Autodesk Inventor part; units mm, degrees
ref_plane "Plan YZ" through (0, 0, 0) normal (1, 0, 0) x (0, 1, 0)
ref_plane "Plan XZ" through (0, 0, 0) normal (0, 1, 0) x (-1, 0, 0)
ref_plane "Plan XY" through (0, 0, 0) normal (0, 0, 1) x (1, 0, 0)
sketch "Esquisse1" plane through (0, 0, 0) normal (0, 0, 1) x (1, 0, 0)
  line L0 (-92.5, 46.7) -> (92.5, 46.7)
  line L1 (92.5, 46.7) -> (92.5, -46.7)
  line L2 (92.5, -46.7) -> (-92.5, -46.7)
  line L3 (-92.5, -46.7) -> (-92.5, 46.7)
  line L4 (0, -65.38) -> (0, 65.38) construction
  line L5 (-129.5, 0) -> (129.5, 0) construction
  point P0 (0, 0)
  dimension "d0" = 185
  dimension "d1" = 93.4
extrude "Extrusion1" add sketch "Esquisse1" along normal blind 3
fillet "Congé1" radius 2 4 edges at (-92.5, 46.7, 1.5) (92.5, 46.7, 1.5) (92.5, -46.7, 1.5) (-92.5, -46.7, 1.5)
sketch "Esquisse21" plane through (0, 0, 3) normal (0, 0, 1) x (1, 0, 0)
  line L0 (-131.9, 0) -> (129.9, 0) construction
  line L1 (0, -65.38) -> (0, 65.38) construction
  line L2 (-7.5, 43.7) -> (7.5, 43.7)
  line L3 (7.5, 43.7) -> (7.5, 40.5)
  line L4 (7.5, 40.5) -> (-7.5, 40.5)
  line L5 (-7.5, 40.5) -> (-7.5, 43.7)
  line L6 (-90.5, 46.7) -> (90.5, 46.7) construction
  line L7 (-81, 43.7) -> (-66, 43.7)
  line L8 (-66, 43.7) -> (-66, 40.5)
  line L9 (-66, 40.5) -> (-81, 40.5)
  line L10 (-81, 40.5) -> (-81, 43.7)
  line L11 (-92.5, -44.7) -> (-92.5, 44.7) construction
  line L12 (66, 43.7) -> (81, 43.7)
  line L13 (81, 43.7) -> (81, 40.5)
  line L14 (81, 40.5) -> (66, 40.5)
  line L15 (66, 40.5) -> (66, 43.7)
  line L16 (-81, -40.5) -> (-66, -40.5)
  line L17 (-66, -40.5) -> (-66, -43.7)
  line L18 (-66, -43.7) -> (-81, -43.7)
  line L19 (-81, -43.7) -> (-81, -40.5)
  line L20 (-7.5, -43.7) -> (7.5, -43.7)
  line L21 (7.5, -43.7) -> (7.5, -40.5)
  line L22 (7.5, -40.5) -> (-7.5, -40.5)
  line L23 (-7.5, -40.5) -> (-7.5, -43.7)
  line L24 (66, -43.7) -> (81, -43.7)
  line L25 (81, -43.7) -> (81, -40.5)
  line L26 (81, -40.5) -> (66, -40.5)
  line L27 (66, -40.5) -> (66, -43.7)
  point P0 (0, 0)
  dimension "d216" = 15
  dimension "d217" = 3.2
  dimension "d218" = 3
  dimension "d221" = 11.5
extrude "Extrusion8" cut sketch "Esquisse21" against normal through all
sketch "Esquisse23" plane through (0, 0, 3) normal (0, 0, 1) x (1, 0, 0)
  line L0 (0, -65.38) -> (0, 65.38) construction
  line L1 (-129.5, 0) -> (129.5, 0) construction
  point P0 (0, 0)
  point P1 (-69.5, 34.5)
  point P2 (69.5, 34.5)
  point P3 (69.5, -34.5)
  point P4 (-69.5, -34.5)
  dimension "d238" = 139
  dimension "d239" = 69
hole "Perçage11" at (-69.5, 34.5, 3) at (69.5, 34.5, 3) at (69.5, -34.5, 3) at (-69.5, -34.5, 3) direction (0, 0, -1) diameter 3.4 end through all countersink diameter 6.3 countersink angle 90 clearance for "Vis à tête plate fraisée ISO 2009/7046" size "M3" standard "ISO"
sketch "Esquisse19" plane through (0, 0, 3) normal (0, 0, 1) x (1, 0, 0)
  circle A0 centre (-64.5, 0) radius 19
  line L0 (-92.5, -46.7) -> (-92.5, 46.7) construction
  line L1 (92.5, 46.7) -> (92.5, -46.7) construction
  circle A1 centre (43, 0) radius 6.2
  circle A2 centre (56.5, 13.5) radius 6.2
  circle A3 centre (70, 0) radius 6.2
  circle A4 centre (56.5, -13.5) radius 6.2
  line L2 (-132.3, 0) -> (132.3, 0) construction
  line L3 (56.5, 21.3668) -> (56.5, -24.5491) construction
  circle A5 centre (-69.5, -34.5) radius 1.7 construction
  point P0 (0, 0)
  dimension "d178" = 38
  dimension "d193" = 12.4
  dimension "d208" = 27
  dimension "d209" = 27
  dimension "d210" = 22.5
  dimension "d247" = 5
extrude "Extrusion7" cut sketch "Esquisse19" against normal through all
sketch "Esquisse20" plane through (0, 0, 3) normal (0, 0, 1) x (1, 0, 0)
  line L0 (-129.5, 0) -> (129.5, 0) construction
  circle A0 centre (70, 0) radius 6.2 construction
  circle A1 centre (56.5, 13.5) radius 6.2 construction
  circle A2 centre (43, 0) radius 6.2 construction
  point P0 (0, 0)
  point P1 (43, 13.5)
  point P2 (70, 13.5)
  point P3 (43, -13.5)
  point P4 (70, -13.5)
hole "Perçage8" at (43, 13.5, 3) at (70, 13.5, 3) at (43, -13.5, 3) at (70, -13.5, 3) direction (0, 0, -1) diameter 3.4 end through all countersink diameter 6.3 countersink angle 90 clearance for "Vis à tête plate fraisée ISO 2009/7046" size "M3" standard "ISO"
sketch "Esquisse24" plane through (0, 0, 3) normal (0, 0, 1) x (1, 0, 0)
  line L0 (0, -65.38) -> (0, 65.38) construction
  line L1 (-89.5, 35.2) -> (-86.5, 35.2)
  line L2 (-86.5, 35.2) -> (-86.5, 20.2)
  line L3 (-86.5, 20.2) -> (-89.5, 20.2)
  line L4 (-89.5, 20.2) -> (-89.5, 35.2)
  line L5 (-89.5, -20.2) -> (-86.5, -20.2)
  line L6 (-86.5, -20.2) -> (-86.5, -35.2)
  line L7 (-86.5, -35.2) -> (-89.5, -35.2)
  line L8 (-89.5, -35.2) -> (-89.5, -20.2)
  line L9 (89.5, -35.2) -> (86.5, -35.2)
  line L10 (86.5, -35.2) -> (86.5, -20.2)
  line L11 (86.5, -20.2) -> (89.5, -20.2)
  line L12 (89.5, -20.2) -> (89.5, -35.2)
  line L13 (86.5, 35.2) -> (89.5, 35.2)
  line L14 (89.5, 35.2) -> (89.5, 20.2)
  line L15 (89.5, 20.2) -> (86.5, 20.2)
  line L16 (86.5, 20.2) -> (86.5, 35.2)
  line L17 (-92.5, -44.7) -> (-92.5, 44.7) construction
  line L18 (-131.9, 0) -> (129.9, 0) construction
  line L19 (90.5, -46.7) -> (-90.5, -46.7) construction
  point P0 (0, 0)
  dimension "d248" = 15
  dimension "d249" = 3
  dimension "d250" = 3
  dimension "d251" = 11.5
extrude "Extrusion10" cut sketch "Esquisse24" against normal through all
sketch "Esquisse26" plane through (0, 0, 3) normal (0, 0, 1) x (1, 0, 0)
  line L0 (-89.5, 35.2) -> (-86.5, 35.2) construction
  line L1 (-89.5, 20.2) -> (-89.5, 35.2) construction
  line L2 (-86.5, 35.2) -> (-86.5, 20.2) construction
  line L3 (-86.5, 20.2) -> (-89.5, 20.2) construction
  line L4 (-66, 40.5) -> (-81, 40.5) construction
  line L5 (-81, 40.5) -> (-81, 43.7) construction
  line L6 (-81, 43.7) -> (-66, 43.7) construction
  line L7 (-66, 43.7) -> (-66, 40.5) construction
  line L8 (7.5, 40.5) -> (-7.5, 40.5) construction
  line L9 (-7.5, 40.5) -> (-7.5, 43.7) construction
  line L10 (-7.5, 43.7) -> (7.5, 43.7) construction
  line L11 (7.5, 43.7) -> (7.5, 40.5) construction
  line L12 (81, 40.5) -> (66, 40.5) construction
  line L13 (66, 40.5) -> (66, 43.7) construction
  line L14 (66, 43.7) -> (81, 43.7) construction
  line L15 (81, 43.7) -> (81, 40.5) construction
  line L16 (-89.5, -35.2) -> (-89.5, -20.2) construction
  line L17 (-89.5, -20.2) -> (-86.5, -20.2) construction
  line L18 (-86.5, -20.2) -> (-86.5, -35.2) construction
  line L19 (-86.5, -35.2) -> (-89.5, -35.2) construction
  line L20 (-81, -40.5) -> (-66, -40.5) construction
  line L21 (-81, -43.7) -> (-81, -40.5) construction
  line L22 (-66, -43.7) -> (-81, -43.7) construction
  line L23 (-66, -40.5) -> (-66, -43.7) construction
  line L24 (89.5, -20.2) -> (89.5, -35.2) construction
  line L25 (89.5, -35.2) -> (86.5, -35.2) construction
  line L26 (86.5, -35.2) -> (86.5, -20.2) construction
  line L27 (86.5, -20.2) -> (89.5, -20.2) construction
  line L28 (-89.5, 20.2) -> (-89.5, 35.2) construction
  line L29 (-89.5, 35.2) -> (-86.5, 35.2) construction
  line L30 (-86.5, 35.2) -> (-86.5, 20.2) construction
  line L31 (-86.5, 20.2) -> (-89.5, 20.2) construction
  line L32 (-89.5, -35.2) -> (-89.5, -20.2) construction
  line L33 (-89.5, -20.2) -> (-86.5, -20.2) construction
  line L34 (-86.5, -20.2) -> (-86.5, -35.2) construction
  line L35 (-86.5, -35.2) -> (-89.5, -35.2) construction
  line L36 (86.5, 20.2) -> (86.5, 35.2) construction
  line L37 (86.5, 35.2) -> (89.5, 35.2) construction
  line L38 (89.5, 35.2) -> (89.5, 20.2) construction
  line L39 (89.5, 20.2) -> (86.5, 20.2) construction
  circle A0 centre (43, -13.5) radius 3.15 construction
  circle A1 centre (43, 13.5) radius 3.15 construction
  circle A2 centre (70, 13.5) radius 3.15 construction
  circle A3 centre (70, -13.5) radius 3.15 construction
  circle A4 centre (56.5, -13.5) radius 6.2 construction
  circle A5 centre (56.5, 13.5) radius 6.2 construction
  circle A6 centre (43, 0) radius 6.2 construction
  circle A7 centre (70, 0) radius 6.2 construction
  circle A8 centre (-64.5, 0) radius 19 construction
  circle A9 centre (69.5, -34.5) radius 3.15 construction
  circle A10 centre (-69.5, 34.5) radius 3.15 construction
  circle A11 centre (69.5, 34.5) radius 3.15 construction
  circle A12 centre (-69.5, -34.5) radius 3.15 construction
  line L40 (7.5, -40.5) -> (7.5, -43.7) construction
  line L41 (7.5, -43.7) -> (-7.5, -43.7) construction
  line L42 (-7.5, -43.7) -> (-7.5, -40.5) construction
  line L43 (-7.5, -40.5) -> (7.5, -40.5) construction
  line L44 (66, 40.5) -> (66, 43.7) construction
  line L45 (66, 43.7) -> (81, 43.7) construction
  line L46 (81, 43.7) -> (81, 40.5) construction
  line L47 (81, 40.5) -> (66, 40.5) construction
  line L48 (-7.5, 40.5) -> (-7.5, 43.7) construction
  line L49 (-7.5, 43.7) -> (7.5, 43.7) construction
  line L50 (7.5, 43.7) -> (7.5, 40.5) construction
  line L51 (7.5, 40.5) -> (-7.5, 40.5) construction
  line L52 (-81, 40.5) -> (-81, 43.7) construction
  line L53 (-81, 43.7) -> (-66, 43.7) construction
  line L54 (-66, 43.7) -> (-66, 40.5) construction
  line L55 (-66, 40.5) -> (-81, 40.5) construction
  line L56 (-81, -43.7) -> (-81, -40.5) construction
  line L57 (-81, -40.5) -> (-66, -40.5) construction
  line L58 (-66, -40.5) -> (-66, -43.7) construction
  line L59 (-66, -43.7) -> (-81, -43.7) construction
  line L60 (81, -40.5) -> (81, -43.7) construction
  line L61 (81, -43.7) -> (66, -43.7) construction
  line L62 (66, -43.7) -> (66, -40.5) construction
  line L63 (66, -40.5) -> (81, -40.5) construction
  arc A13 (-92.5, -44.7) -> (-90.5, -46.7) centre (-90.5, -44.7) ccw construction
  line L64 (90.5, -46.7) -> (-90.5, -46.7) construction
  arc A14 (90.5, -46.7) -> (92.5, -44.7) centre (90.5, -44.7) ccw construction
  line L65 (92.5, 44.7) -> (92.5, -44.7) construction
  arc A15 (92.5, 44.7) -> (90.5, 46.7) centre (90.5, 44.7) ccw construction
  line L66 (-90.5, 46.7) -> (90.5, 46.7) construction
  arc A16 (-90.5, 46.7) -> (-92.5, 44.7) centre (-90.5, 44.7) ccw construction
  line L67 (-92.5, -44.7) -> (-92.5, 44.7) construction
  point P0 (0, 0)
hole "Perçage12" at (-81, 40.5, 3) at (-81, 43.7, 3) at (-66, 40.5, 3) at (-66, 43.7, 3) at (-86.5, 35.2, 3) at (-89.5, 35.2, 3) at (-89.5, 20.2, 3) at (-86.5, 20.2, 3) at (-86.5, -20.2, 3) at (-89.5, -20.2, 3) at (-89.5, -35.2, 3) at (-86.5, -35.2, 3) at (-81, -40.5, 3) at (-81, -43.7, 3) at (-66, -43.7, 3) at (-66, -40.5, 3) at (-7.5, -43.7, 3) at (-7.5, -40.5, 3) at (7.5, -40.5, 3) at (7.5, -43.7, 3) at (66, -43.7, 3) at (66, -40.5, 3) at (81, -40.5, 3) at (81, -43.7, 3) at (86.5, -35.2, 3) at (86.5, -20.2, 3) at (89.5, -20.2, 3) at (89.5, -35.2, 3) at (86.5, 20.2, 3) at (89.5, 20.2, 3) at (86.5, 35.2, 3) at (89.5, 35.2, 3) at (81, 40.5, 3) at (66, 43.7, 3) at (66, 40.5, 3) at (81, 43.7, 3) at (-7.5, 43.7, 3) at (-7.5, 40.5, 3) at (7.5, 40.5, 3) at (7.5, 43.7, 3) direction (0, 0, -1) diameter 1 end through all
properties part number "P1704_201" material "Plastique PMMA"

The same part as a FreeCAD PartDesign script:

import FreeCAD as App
import Part
import Sketcher

V = App.Vector
Q = App.Units.Quantity


def edges_at(feature, points):
    """Names of the edges that pass closest to the given points."""
    edges = feature.Shape.Edges
    near = lambda p: min(range(len(edges)), key=lambda i: edges[i].distToShape(Part.Vertex(*p))[0])
    return sorted({f"Edge{near(p) + 1}" for p in points})


def add_polygon(sketch, points):
    """Adds a closed chain of lines whose ends are joined by coincident constraints."""
    first, n = sketch.GeometryCount, len(points)
    for a, b in zip(points, points[1:] + points[:1]):
        sketch.addGeometry(Part.LineSegment(App.Vector(*a, 0), App.Vector(*b, 0)), False)
    for i in range(n):
        sketch.addConstraint(Sketcher.Constraint("Coincident", first + i, 2, first + (i + 1) % n, 1))

doc = App.newDocument("Part")
body = doc.addObject("PartDesign::Body", "Body")

sketch1 = doc.addObject("Sketcher::SketchObject", "Sketch")
body.addObject(sketch1)
sketch1.AttachmentSupport = (doc.XY_Plane, [""])
sketch1.MapMode = "FlatFace"
add_polygon(sketch1, [(92, 47), (-92, 47), (-92, -47), (92, -47)])
sketch1.addConstraint([
    Sketcher.Constraint("Horizontal", 0),
    Sketcher.Constraint("Vertical", 1),
    Sketcher.Constraint("Horizontal", 2),
    Sketcher.Constraint("Vertical", 3),
    Sketcher.Constraint("Symmetric", 0, 2, 2, 2, -1, 1),
    Sketcher.Constraint("DistanceX", 0, 2, 0, 1, Q("185 mm")),
    Sketcher.Constraint("DistanceY", 1, 2, 1, 1, Q("93.4 mm")),
])
pad1 = doc.addObject("PartDesign::Pad", "Pad")
body.addObject(pad1)
pad1.Profile = sketch1
pad1.Length = 3
doc.recompute()

fillet = doc.addObject("PartDesign::Fillet", "Fillet")
body.addObject(fillet)
fillet.Base = (pad1, edges_at(pad1, [
    (-92.5, 46.7, 1.5),
    (92.5, 46.7, 1.5),
    (92.5, -46.7, 1.5),
    (-92.5, -46.7, 1.5),
]))
fillet.Radius = 2

sketch2 = doc.addObject("Sketcher::SketchObject", "Sketch001")
body.addObject(sketch2)
sketch2.AttachmentSupport = (doc.XY_Plane, [""])
sketch2.MapMode = "FlatFace"
sketch2.AttachmentOffset = App.Placement(V(0, 0, 3), App.Rotation())
add_polygon(sketch2, [(7.5, 43.7), (-7.5, 43.7), (-7.5, 40.5), (7.5, 40.5)])
add_polygon(sketch2, [(-66, 43.7), (-81, 43.7), (-81, 40.5), (-66, 40.5)])
add_polygon(sketch2, [(81, 43.7), (66, 43.7), (66, 40.5), (81, 40.5)])
add_polygon(sketch2, [(-66, -40.5), (-81, -40.5), (-81, -43.7), (-66, -43.7)])
add_polygon(sketch2, [(-7.5, -40.5), (-7.5, -43.7), (7.5, -43.7), (7.5, -40.5)])
add_polygon(sketch2, [(66, -40.5), (66, -43.7), (81, -43.7), (81, -40.5)])
sketch2.addConstraint([
    Sketcher.Constraint("Horizontal", 0),
    Sketcher.Constraint("Vertical", 1),
    Sketcher.Constraint("Horizontal", 2),
    Sketcher.Constraint("Vertical", 3),
    Sketcher.Constraint("Horizontal", 4),
    Sketcher.Constraint("Vertical", 5),
    Sketcher.Constraint("Horizontal", 6),
    Sketcher.Constraint("Vertical", 7),
    Sketcher.Constraint("Horizontal", 8),
    Sketcher.Constraint("Vertical", 9),
    Sketcher.Constraint("Horizontal", 10),
    Sketcher.Constraint("Vertical", 11),
    Sketcher.Constraint("Horizontal", 12),
    Sketcher.Constraint("Vertical", 13),
    Sketcher.Constraint("Horizontal", 14),
    Sketcher.Constraint("Vertical", 15),
    Sketcher.Constraint("Vertical", 16),
    Sketcher.Constraint("Horizontal", 17),
    Sketcher.Constraint("Vertical", 18),
    Sketcher.Constraint("Horizontal", 19),
    Sketcher.Constraint("Vertical", 20),
    Sketcher.Constraint("Horizontal", 21),
    Sketcher.Constraint("Vertical", 22),
    Sketcher.Constraint("Horizontal", 23),
    Sketcher.Constraint("Symmetric", 10, 2, 12, 2, -1, 1),
    Sketcher.Constraint("Symmetric", 8, 2, 14, 2, -1, 1),
    Sketcher.Constraint("Symmetric", 3, 2, 16, 2, -1, 1),
    Sketcher.Constraint("Symmetric", 1, 2, 18, 2, -1, 1),
    Sketcher.Constraint("Symmetric", 7, 2, 20, 2, -1, 1),
    Sketcher.Constraint("Symmetric", 5, 2, 22, 2, -1, 1),
    Sketcher.Constraint("Symmetric", 7, 2, 8, 2, -2),
    Sketcher.Constraint("Symmetric", 5, 2, 10, 2, -2),
    Sketcher.Constraint("Horizontal", 3, 2, 4, 2),
    Sketcher.Constraint("Horizontal", 2, 2, 5, 2),
    Sketcher.Constraint("Vertical", 1, 2, 16, 2),
    Sketcher.Constraint("Equal", 2, 4),
    Sketcher.Constraint("DistanceX", 0, 2, 0, 1, Q("15 mm")),
    Sketcher.Constraint("DistanceY", 1, 2, 1, 1, Q("3.2 mm")),
    Sketcher.Constraint("DistanceX", 4, 2, -1, 1, Q("81 mm")),
    Sketcher.Constraint("DistanceY", 12, 2, 5, 2, Q("81 mm")),
])
pocket1 = doc.addObject("PartDesign::Pocket", "Pocket")
body.addObject(pocket1)
pocket1.Profile = sketch2
pocket1.Type = "ThroughAll"

sketch3 = doc.addObject("Sketcher::SketchObject", "Sketch002")
body.addObject(sketch3)
sketch3.AttachmentSupport = (doc.XY_Plane, [""])
sketch3.MapMode = "FlatFace"
sketch3.AttachmentOffset = App.Placement(V(0, 0, 3), App.Rotation())
sketch3.addGeometry([
    Part.Circle(V(-69.5, 34.5, 0), V(0, 0, 1), 1.7),
    Part.Circle(V(69.5, 34.5, 0), V(0, 0, 1), 1.7),
    Part.Circle(V(69.5, -34.5, 0), V(0, 0, 1), 1.7),
    Part.Circle(V(-69.5, -34.5, 0), V(0, 0, 1), 1.7),
], False)
sketch3.addConstraint([
    Sketcher.Constraint("Equal", 0, 1),
    Sketcher.Constraint("Equal", 1, 2),
    Sketcher.Constraint("Equal", 2, 3),
    Sketcher.Constraint("Symmetric", 0, 3, 2, 3, -1, 1),
    Sketcher.Constraint("Symmetric", 1, 3, 3, 3, -1, 1),
    Sketcher.Constraint("Symmetric", 0, 3, 1, 3, -2),
    Sketcher.Constraint("Diameter", 0, Q("3.4 mm")),
    Sketcher.Constraint("DistanceX", 0, 3, 1, 3, Q("139 mm")),
    Sketcher.Constraint("DistanceY", 2, 3, 1, 3, Q("69 mm")),
])
doc.recompute()
hole = doc.addObject("PartDesign::Hole", "Hole")
body.addObject(hole)
hole.Profile = sketch3
hole.ThreadType = "None"
hole.Diameter = 3.4
hole.DepthType = "ThroughAll"
hole.HoleCutType = "Countersink"
hole.HoleCutDiameter = 6.3
hole.HoleCutCountersinkAngle = 90

sketch4 = doc.addObject("Sketcher::SketchObject", "Sketch003")
body.addObject(sketch4)
sketch4.AttachmentSupport = (doc.XY_Plane, [""])
sketch4.MapMode = "FlatFace"
sketch4.AttachmentOffset = App.Placement(V(0, 0, 3), App.Rotation())
sketch4.addGeometry([
    Part.Circle(V(-64, 0, 0), V(0, 0, 1), 19),
    Part.Circle(V(43, 0, 0), V(0, 0, 1), 6),
    Part.Circle(V(56, 14, 0), V(0, 0, 1), 6),
    Part.Circle(V(70, 0, 0), V(0, 0, 1), 6),
    Part.Circle(V(56, -14, 0), V(0, 0, 1), 6),
], False)
sketch4.addConstraint([
    Sketcher.Constraint("Equal", 1, 2),
    Sketcher.Constraint("Equal", 2, 3),
    Sketcher.Constraint("Equal", 3, 4),
    Sketcher.Constraint("Symmetric", 2, 3, 4, 3, -1),
    Sketcher.Constraint("PointOnObject", 0, 3, -1),
    Sketcher.Constraint("PointOnObject", 1, 3, -1),
    Sketcher.Constraint("PointOnObject", 3, 3, -1),
    Sketcher.Constraint("Diameter", 0, Q("38 mm")),
    Sketcher.Constraint("Diameter", 1, Q("12.4 mm")),
    Sketcher.Constraint("DistanceX", 1, 3, 3, 3, Q("27 mm")),
    Sketcher.Constraint("DistanceY", 4, 3, 2, 3, Q("27 mm")),
    Sketcher.Constraint("DistanceX", -1, 1, 1, 3, Q("43 mm")),
    Sketcher.Constraint("DistanceX", 0, 3, 2, 3, Q("121 mm")),
    Sketcher.Constraint("DistanceX", 0, 3, -1, 1, Q("64.5 mm")),
])
pocket2 = doc.addObject("PartDesign::Pocket", "Pocket001")
body.addObject(pocket2)
pocket2.Profile = sketch4
pocket2.Type = "ThroughAll"

sketch5 = doc.addObject("Sketcher::SketchObject", "Sketch004")
body.addObject(sketch5)
sketch5.AttachmentSupport = (doc.XY_Plane, [""])
sketch5.MapMode = "FlatFace"
sketch5.AttachmentOffset = App.Placement(V(0, 0, 3), App.Rotation())
sketch5.addGeometry([
    Part.Circle(V(43, 13.5, 0), V(0, 0, 1), 1.7),
    Part.Circle(V(70, 13.5, 0), V(0, 0, 1), 1.7),
    Part.Circle(V(43, -13.5, 0), V(0, 0, 1), 1.7),
    Part.Circle(V(70, -13.5, 0), V(0, 0, 1), 1.7),
], False)
sketch5.addConstraint([
    Sketcher.Constraint("Equal", 0, 1),
    Sketcher.Constraint("Equal", 1, 2),
    Sketcher.Constraint("Equal", 2, 3),
    Sketcher.Constraint("Symmetric", 0, 3, 2, 3, -1),
    Sketcher.Constraint("Symmetric", 1, 3, 3, 3, -1),
    Sketcher.Constraint("Horizontal", 0, 3, 1, 3),
    Sketcher.Constraint("Diameter", 0, Q("3.4 mm")),
    Sketcher.Constraint("DistanceX", -1, 1, 0, 3, Q("43 mm")),
    Sketcher.Constraint("DistanceX", -1, 1, 1, 3, Q("70 mm")),
    Sketcher.Constraint("DistanceY", 2, 3, 0, 3, Q("27 mm")),
])
doc.recompute()
hole2 = doc.addObject("PartDesign::Hole", "Hole001")
body.addObject(hole2)
hole2.Profile = sketch5
hole2.ThreadType = "None"
hole2.Diameter = 3.4
hole2.DepthType = "ThroughAll"
hole2.HoleCutType = "Countersink"
hole2.HoleCutDiameter = 6.3
hole2.HoleCutCountersinkAngle = 90

sketch6 = doc.addObject("Sketcher::SketchObject", "Sketch005")
body.addObject(sketch6)
sketch6.AttachmentSupport = (doc.XY_Plane, [""])
sketch6.MapMode = "FlatFace"
sketch6.AttachmentOffset = App.Placement(V(0, 0, 3), App.Rotation())
add_polygon(sketch6, [(-86.5, 35.2), (-89.5, 35.2), (-89.5, 20.2), (-86.5, 20.2)])
add_polygon(sketch6, [(-86.5, -20.2), (-89.5, -20.2), (-89.5, -35.2), (-86.5, -35.2)])
add_polygon(sketch6, [(86.5, -35.2), (89.5, -35.2), (89.5, -20.2), (86.5, -20.2)])
add_polygon(sketch6, [(89.5, 35.2), (86.5, 35.2), (86.5, 20.2), (89.5, 20.2)])
sketch6.addConstraint([
    Sketcher.Constraint("Horizontal", 0),
    Sketcher.Constraint("Vertical", 1),
    Sketcher.Constraint("Horizontal", 2),
    Sketcher.Constraint("Vertical", 3),
    Sketcher.Constraint("Horizontal", 4),
    Sketcher.Constraint("Vertical", 5),
    Sketcher.Constraint("Horizontal", 6),
    Sketcher.Constraint("Vertical", 7),
    Sketcher.Constraint("Horizontal", 8),
    Sketcher.Constraint("Vertical", 9),
    Sketcher.Constraint("Horizontal", 10),
    Sketcher.Constraint("Vertical", 11),
    Sketcher.Constraint("Horizontal", 12),
    Sketcher.Constraint("Vertical", 13),
    Sketcher.Constraint("Horizontal", 14),
    Sketcher.Constraint("Vertical", 15),
    Sketcher.Constraint("Symmetric", 0, 2, 8, 2, -1, 1),
    Sketcher.Constraint("Symmetric", 2, 2, 10, 2, -1, 1),
    Sketcher.Constraint("Symmetric", 6, 2, 12, 2, -1, 1),
    Sketcher.Constraint("Symmetric", 4, 2, 14, 2, -1, 1),
    Sketcher.Constraint("Symmetric", 5, 2, 8, 2, -2),
    Sketcher.Constraint("Symmetric", 7, 2, 10, 2, -2),
    Sketcher.Constraint("DistanceX", 0, 2, 0, 1, Q("3 mm")),
    Sketcher.Constraint("DistanceY", 1, 2, 1, 1, Q("15 mm")),
    Sketcher.Constraint("DistanceX", 6, 2, 8, 2, Q("176 mm")),
    Sketcher.Constraint("DistanceY", -1, 1, 0, 2, Q("35.2 mm")),
])
pocket3 = doc.addObject("PartDesign::Pocket", "Pocket002")
body.addObject(pocket3)
pocket3.Profile = sketch6
pocket3.Type = "ThroughAll"

sketch7 = doc.addObject("Sketcher::SketchObject", "Sketch006")
body.addObject(sketch7)
sketch7.AttachmentSupport = (doc.XY_Plane, [""])
sketch7.MapMode = "FlatFace"
sketch7.AttachmentOffset = App.Placement(V(0, 0, 3), App.Rotation())
sketch7.addGeometry([
    Part.Circle(V(-81, 40.5, 0), V(0, 0, 1), 0.5),
    Part.Circle(V(-81, 43.7, 0), V(0, 0, 1), 0.5),
    Part.Circle(V(-66, 40.5, 0), V(0, 0, 1), 0.5),
    Part.Circle(V(-66, 43.7, 0), V(0, 0, 1), 0.5),
    Part.Circle(V(-86.5, 35.2, 0), V(0, 0, 1), 0.5),
    Part.Circle(V(-89.5, 35.2, 0), V(0, 0, 1), 0.5),
    Part.Circle(V(-89.5, 20.2, 0), V(0, 0, 1), 0.5),
    Part.Circle(V(-86.5, 20.2, 0), V(0, 0, 1), 0.5),
    Part.Circle(V(-86.5, -20.2, 0), V(0, 0, 1), 0.5),
    Part.Circle(V(-89.5, -20.2, 0), V(0, 0, 1), 0.5),
    Part.Circle(V(-89.5, -35.2, 0), V(0, 0, 1), 0.5),
    Part.Circle(V(-86.5, -35.2, 0), V(0, 0, 1), 0.5),
    Part.Circle(V(-81, -40.5, 0), V(0, 0, 1), 0.5),
    Part.Circle(V(-81, -43.7, 0), V(0, 0, 1), 0.5),
    Part.Circle(V(-66, -43.7, 0), V(0, 0, 1), 0.5),
    Part.Circle(V(-66, -40.5, 0), V(0, 0, 1), 0.5),
    Part.Circle(V(-7.5, -43.7, 0), V(0, 0, 1), 0.5),
    Part.Circle(V(-7.5, -40.5, 0), V(0, 0, 1), 0.5),
    Part.Circle(V(7.5, -40.5, 0), V(0, 0, 1), 0.5),
    Part.Circle(V(7.5, -43.7, 0), V(0, 0, 1), 0.5),
    Part.Circle(V(66, -43.7, 0), V(0, 0, 1), 0.5),
    Part.Circle(V(66, -40.5, 0), V(0, 0, 1), 0.5),
    Part.Circle(V(81, -40.5, 0), V(0, 0, 1), 0.5),
    Part.Circle(V(81, -43.7, 0), V(0, 0, 1), 0.5),
    Part.Circle(V(86.5, -35.2, 0), V(0, 0, 1), 0.5),
    Part.Circle(V(86.5, -20.2, 0), V(0, 0, 1), 0.5),
    Part.Circle(V(89.5, -20.2, 0), V(0, 0, 1), 0.5),
    Part.Circle(V(89.5, -35.2, 0), V(0, 0, 1), 0.5),
    Part.Circle(V(86.5, 20.2, 0), V(0, 0, 1), 0.5),
    Part.Circle(V(89.5, 20.2, 0), V(0, 0, 1), 0.5),
    Part.Circle(V(86.5, 35.2, 0), V(0, 0, 1), 0.5),
    Part.Circle(V(89.5, 35.2, 0), V(0, 0, 1), 0.5),
    Part.Circle(V(81, 40.5, 0), V(0, 0, 1), 0.5),
    Part.Circle(V(66, 43.7, 0), V(0, 0, 1), 0.5),
    Part.Circle(V(66, 40.5, 0), V(0, 0, 1), 0.5),
    Part.Circle(V(81, 43.7, 0), V(0, 0, 1), 0.5),
    Part.Circle(V(-7.5, 43.7, 0), V(0, 0, 1), 0.5),
    Part.Circle(V(-7.5, 40.5, 0), V(0, 0, 1), 0.5),
    Part.Circle(V(7.5, 40.5, 0), V(0, 0, 1), 0.5),
    Part.Circle(V(7.5, 43.7, 0), V(0, 0, 1), 0.5),
], False)
sketch7.addConstraint([
    Sketcher.Constraint("Equal", 0, 1),
    Sketcher.Constraint("Equal", 1, 2),
    Sketcher.Constraint("Equal", 2, 3),
    Sketcher.Constraint("Equal", 3, 4),
    Sketcher.Constraint("Equal", 4, 5),
    Sketcher.Constraint("Equal", 5, 6),
    Sketcher.Constraint("Equal", 6, 7),
    Sketcher.Constraint("Equal", 7, 8),
    Sketcher.Constraint("Equal", 8, 9),
    Sketcher.Constraint("Equal", 9, 10),
    Sketcher.Constraint("Equal", 10, 11),
    Sketcher.Constraint("Equal", 11, 12),
    Sketcher.Constraint("Equal", 12, 13),
    Sketcher.Constraint("Equal", 13, 14),
    Sketcher.Constraint("Equal", 14, 15),
    Sketcher.Constraint("Equal", 15, 16),
    Sketcher.Constraint("Equal", 16, 17),
    Sketcher.Constraint("Equal", 17, 18),
    Sketcher.Constraint("Equal", 18, 19),
    Sketcher.Constraint("Equal", 19, 20),
    Sketcher.Constraint("Equal", 20, 21),
    Sketcher.Constraint("Equal", 21, 22),
    Sketcher.Constraint("Equal", 22, 23),
    Sketcher.Constraint("Equal", 23, 24),
    Sketcher.Constraint("Equal", 24, 25),
    Sketcher.Constraint("Equal", 25, 26),
    Sketcher.Constraint("Equal", 26, 27),
    Sketcher.Constraint("Equal", 27, 28),
    Sketcher.Constraint("Equal", 28, 29),
    Sketcher.Constraint("Equal", 29, 30),
    Sketcher.Constraint("Equal", 30, 31),
    Sketcher.Constraint("Equal", 31, 32),
    Sketcher.Constraint("Equal", 32, 33),
    Sketcher.Constraint("Equal", 33, 34),
    Sketcher.Constraint("Equal", 34, 35),
    Sketcher.Constraint("Equal", 35, 36),
    Sketcher.Constraint("Equal", 36, 37),
    Sketcher.Constraint("Equal", 37, 38),
    Sketcher.Constraint("Equal", 38, 39),
    Sketcher.Constraint("Symmetric", 3, 3, 20, 3, -1, 1),
    Sketcher.Constraint("Symmetric", 2, 3, 21, 3, -1, 1),
    Sketcher.Constraint("Symmetric", 0, 3, 22, 3, -1, 1),
    Sketcher.Constraint("Symmetric", 1, 3, 23, 3, -1, 1),
    Sketcher.Constraint("Symmetric", 4, 3, 24, 3, -1, 1),
    Sketcher.Constraint("Symmetric", 7, 3, 25, 3, -1, 1),
    Sketcher.Constraint("Symmetric", 6, 3, 26, 3, -1, 1),
    Sketcher.Constraint("Symmetric", 5, 3, 27, 3, -1, 1),
    Sketcher.Constraint("Symmetric", 8, 3, 28, 3, -1, 1),
    Sketcher.Constraint("Symmetric", 9, 3, 29, 3, -1, 1),
    Sketcher.Constraint("Symmetric", 11, 3, 30, 3, -1, 1),
    Sketcher.Constraint("Symmetric", 10, 3, 31, 3, -1, 1),
    Sketcher.Constraint("Symmetric", 12, 3, 32, 3, -1, 1),
    Sketcher.Constraint("Symmetric", 14, 3, 33, 3, -1, 1),
    Sketcher.Constraint("Symmetric", 15, 3, 34, 3, -1, 1),
    Sketcher.Constraint("Symmetric", 13, 3, 35, 3, -1, 1),
    Sketcher.Constraint("Symmetric", 19, 3, 36, 3, -1, 1),
    Sketcher.Constraint("Symmetric", 18, 3, 37, 3, -1, 1),
    Sketcher.Constraint("Symmetric", 17, 3, 38, 3, -1, 1),
    Sketcher.Constraint("Symmetric", 16, 3, 39, 3, -1, 1),
    Sketcher.Constraint("Symmetric", 17, 3, 18, 3, -2),
    Sketcher.Constraint("Symmetric", 16, 3, 19, 3, -2),
    Sketcher.Constraint("Symmetric", 14, 3, 20, 3, -2),
    Sketcher.Constraint("Symmetric", 15, 3, 21, 3, -2),
    Sketcher.Constraint("Symmetric", 12, 3, 22, 3, -2),
    Sketcher.Constraint("Symmetric", 13, 3, 23, 3, -2),
    Sketcher.Constraint("Symmetric", 11, 3, 24, 3, -2),
    Sketcher.Constraint("Symmetric", 8, 3, 25, 3, -2),
    Sketcher.Constraint("Symmetric", 9, 3, 26, 3, -2),
    Sketcher.Constraint("Symmetric", 10, 3, 27, 3, -2),
    Sketcher.Constraint("Horizontal", 0, 3, 2, 3),
    Sketcher.Constraint("Horizontal", 1, 3, 3, 3),
    Sketcher.Constraint("Horizontal", 4, 3, 5, 3),
    Sketcher.Constraint("Horizontal", 6, 3, 7, 3),
    Sketcher.Constraint("Horizontal", 14, 3, 16, 3),
    Sketcher.Constraint("Horizontal", 15, 3, 17, 3),
    Sketcher.Constraint("Vertical", 0, 3, 1, 3),
    Sketcher.Constraint("Vertical", 2, 3, 3, 3),
    Sketcher.Constraint("Vertical", 5, 3, 6, 3),
    Sketcher.Constraint("Vertical", 4, 3, 7, 3),
    Sketcher.Constraint("Vertical", 16, 3, 17, 3),
    Sketcher.Constraint("Diameter", 0, Q("1 mm")),
    Sketcher.Constraint("DistanceX", 0, 3, -1, 1, Q("81 mm")),
    Sketcher.Constraint("DistanceX", 2, 3, -1, 1, Q("66 mm")),
    Sketcher.Constraint("DistanceX", 5, 3, 4, 3, Q("3 mm")),
    Sketcher.Constraint("DistanceY", 6, 3, 5, 3, Q("15 mm")),
    Sketcher.Constraint("DistanceX", 11, 3, 16, 3, Q("79 mm")),
    Sketcher.Constraint("DistanceX", 17, 3, 18, 3, Q("15 mm")),
    Sketcher.Constraint("DistanceY", -1, 1, 0, 3, Q("40.5 mm")),
    Sketcher.Constraint("DistanceY", -1, 1, 1, 3, Q("43.7 mm")),
    Sketcher.Constraint("DistanceY", -1, 1, 4, 3, Q("35.2 mm")),
])
doc.recompute()
hole3 = doc.addObject("PartDesign::Hole", "Hole002")
body.addObject(hole3)
hole3.Profile = sketch7
hole3.ThreadType = "None"
hole3.Diameter = 1
hole3.DepthType = "ThroughAll"

doc.recompute()
